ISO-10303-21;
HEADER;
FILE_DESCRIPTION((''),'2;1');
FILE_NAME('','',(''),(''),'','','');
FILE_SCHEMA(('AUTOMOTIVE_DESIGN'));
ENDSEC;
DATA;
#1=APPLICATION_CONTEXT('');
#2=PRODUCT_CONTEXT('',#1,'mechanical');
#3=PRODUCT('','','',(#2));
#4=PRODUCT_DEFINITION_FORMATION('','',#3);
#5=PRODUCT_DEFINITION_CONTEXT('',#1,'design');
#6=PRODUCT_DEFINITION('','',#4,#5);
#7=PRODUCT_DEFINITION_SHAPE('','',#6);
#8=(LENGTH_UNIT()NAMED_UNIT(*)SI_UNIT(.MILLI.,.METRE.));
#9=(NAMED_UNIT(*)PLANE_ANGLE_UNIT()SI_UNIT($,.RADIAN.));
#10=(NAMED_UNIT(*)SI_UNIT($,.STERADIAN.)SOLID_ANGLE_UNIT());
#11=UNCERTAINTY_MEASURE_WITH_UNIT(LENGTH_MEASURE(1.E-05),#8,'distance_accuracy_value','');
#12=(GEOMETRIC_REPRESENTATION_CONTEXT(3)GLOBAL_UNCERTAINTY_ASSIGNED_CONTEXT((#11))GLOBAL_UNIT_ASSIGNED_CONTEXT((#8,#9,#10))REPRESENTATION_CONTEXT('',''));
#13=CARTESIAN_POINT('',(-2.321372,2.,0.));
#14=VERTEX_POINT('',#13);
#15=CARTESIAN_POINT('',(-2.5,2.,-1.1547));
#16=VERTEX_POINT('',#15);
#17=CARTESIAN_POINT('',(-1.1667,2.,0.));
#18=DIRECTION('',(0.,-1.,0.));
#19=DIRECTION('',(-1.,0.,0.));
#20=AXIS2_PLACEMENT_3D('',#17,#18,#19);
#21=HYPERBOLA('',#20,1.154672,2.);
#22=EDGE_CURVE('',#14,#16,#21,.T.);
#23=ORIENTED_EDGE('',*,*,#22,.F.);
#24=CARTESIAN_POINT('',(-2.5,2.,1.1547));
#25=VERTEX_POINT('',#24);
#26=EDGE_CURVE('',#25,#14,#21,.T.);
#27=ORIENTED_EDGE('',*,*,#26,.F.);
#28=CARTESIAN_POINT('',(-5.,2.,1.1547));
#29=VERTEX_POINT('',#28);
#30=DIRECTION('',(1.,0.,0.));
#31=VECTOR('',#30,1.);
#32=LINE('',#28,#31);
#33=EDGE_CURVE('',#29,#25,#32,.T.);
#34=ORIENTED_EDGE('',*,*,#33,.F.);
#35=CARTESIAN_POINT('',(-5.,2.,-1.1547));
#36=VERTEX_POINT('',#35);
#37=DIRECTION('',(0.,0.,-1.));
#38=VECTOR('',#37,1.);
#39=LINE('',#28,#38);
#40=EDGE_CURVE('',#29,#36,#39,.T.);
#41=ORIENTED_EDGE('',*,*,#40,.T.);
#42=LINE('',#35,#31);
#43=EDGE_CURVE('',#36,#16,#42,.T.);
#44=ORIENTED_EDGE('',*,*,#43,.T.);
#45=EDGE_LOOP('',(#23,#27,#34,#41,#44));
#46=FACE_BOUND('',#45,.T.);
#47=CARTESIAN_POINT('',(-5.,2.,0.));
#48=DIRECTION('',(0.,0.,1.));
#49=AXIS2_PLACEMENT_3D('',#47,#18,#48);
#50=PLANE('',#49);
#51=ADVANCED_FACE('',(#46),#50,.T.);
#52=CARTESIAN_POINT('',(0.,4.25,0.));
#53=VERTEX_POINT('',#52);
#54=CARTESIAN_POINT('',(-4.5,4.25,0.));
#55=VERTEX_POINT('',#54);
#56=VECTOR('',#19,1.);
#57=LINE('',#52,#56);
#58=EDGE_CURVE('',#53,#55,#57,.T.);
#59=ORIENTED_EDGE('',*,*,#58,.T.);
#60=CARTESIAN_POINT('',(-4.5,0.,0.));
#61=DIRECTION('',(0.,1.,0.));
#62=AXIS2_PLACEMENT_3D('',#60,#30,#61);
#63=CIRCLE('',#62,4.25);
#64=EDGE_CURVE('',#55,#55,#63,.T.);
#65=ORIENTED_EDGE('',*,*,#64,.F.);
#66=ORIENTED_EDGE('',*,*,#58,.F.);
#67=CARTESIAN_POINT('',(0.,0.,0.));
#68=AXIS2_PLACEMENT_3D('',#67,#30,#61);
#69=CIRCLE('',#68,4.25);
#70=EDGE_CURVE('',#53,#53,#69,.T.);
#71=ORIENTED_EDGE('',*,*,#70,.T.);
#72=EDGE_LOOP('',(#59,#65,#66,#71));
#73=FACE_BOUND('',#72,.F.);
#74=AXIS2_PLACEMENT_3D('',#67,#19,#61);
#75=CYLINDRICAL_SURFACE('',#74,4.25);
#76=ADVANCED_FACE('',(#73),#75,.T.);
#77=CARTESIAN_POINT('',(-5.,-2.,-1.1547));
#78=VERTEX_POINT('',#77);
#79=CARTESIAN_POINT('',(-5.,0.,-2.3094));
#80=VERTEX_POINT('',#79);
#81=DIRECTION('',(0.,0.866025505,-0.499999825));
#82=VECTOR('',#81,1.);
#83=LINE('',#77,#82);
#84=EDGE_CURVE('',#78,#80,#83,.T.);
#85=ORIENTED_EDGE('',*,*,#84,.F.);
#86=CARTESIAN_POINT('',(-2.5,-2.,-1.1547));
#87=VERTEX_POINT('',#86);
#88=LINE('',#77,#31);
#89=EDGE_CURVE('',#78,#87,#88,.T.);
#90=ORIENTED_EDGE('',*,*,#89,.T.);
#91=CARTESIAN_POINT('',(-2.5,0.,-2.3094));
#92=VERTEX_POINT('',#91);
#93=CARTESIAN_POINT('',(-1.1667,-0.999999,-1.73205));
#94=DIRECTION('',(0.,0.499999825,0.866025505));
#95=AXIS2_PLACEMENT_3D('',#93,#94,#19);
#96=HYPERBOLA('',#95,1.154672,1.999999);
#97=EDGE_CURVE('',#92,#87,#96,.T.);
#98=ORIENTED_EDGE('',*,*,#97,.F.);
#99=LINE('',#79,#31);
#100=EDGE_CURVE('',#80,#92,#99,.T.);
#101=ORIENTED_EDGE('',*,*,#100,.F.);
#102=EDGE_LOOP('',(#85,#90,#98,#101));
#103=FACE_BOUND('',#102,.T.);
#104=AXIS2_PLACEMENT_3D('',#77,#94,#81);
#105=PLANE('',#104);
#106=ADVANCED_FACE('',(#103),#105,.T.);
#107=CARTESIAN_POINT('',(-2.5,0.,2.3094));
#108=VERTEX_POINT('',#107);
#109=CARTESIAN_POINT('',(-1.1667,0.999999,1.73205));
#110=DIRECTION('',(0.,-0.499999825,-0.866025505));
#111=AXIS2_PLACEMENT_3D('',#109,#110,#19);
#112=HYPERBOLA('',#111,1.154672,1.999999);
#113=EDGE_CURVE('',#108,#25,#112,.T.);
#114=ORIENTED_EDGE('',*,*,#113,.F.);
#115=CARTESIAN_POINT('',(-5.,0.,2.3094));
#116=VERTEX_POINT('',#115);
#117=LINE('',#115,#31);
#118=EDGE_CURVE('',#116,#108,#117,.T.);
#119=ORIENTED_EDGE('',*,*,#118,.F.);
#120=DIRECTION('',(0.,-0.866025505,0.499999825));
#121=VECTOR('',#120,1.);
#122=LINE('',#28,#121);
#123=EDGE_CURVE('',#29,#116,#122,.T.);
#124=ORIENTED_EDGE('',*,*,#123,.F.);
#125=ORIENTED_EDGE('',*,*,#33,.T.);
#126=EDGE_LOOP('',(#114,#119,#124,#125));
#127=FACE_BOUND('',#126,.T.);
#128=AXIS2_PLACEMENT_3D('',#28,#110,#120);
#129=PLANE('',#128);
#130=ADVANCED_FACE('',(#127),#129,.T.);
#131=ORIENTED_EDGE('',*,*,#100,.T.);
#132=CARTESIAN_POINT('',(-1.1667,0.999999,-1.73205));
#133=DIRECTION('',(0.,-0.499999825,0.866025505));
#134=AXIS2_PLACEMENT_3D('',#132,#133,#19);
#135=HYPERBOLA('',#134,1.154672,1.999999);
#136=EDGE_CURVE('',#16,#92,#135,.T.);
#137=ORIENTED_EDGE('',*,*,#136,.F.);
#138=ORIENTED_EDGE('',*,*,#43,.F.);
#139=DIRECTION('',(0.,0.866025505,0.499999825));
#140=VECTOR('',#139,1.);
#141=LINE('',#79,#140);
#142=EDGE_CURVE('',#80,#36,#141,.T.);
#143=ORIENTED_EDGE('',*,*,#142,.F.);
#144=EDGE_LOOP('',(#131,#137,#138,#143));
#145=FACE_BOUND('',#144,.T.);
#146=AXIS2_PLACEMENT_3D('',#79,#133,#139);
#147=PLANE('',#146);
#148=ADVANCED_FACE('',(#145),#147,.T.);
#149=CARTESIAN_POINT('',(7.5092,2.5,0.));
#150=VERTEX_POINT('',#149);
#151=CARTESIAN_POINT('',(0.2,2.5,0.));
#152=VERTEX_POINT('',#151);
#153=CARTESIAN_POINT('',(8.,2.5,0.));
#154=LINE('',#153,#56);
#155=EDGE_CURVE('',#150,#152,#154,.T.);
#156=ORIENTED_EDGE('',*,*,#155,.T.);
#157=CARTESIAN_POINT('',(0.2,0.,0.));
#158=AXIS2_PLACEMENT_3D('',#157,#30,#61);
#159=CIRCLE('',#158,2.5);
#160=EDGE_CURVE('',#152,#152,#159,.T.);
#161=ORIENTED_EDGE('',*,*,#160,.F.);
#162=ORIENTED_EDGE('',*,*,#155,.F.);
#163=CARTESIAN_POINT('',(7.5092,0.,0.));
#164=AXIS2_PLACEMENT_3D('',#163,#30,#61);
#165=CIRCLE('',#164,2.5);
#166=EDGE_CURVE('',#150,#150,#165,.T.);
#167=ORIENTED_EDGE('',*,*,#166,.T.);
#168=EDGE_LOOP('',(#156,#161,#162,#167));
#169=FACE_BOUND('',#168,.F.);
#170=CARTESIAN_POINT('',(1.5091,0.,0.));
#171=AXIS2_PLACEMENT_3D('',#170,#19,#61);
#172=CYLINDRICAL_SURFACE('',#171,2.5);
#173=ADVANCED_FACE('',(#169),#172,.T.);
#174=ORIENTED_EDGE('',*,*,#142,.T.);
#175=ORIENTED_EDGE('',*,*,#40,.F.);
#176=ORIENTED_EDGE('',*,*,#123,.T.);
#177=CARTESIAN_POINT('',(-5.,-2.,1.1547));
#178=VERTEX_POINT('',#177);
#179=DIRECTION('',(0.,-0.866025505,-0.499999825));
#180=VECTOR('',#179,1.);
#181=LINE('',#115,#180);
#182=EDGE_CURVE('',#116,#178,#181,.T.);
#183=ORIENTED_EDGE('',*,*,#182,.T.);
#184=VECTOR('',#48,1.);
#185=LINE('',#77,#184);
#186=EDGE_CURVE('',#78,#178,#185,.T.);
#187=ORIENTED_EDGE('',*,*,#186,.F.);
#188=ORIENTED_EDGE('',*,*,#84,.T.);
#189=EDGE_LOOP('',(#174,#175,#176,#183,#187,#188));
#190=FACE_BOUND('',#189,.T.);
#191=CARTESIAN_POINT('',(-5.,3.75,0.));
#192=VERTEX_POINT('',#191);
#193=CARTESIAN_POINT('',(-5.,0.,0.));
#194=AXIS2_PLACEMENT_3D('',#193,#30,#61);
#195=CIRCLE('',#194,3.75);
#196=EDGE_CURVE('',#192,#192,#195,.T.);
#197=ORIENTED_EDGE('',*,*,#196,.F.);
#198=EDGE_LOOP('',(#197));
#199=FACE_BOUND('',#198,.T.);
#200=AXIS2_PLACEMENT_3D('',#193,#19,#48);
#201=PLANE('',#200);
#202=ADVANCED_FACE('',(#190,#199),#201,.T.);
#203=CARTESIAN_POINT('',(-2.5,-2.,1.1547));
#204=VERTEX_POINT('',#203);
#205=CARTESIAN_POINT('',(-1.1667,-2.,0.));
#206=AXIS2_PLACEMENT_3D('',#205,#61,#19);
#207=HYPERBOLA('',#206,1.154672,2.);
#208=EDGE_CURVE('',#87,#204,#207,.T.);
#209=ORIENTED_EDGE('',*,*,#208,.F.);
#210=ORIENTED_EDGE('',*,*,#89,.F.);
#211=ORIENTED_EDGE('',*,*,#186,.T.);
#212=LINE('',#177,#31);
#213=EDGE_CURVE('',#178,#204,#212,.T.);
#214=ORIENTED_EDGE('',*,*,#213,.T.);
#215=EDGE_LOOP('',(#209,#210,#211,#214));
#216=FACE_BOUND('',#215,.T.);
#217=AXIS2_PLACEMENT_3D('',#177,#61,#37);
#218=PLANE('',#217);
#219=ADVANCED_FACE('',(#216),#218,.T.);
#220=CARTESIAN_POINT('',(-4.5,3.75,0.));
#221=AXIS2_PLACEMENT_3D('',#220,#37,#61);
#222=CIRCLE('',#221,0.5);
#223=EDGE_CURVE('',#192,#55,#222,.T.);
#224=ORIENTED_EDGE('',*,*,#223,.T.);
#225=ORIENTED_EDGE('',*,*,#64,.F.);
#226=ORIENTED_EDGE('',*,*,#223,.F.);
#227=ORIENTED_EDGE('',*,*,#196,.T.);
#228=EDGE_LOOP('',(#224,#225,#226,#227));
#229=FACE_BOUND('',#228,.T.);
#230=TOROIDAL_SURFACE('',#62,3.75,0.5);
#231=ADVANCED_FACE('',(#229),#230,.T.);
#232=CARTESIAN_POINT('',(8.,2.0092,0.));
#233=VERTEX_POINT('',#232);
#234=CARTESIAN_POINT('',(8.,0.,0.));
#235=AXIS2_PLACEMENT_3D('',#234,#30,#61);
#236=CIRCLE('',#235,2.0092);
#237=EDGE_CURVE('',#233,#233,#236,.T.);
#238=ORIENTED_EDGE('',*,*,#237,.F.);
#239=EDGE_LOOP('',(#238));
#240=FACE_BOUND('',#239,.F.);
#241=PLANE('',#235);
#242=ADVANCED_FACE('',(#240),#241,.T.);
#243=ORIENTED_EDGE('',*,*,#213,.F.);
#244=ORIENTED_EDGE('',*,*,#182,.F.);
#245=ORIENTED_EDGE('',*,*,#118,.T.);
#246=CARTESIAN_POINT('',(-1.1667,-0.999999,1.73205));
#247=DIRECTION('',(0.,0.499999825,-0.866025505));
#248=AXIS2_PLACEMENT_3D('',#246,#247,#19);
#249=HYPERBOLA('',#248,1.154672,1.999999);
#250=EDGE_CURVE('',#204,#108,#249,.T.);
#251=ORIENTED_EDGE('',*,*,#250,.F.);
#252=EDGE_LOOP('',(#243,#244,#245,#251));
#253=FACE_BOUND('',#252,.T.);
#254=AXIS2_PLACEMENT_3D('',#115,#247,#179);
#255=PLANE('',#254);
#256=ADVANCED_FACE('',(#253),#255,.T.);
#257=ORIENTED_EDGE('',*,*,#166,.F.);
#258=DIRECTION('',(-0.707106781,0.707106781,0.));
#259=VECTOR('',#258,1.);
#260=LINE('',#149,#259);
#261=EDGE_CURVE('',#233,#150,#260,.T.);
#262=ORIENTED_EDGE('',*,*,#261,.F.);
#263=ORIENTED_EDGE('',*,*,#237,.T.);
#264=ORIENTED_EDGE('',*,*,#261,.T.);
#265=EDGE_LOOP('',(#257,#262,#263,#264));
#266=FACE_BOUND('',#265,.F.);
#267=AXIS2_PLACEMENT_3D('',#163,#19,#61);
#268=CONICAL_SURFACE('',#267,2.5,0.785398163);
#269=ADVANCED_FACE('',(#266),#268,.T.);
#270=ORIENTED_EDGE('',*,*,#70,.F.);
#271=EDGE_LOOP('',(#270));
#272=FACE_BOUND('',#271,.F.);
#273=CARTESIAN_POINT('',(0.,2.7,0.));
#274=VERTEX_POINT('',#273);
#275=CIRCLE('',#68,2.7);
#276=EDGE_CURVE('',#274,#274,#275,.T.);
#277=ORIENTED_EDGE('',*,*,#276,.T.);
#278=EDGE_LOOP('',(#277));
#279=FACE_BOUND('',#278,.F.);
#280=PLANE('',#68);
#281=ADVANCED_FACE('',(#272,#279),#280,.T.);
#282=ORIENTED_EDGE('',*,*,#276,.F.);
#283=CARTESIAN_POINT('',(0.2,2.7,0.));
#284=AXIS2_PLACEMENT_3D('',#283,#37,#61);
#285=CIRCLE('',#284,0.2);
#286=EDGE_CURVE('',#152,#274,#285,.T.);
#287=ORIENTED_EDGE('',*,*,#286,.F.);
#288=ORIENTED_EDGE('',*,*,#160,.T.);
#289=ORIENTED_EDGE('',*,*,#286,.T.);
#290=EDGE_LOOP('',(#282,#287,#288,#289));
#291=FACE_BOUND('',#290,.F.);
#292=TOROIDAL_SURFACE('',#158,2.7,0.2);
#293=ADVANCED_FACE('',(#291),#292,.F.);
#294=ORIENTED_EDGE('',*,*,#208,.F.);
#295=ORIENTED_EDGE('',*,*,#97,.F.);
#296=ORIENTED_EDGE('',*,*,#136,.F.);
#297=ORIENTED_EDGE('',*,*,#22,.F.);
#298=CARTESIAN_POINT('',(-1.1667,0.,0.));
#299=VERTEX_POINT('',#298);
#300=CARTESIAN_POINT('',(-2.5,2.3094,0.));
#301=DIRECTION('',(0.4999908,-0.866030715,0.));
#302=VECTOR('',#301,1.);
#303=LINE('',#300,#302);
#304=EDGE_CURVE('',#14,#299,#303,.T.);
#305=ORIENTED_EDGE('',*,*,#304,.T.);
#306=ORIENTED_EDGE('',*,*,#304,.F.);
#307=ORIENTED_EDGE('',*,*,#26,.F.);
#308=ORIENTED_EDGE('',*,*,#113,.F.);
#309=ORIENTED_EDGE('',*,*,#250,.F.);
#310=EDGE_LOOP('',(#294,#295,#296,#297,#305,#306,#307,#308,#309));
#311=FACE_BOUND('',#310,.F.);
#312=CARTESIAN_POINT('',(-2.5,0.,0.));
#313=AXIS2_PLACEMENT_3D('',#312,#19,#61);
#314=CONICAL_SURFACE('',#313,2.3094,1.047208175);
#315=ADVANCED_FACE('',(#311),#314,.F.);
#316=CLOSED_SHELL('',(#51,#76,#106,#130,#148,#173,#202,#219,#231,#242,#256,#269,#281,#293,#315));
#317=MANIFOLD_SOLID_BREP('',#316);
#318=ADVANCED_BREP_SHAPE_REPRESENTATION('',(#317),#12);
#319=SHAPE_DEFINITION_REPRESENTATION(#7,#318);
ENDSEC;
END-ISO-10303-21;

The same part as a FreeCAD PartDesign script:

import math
import FreeCAD as App
import Part
import Sketcher

V = App.Vector
Q = App.Units.Quantity


def edges_at(feature, points):
    """Names of the edges that pass closest to the given points."""
    edges = feature.Shape.Edges
    near = lambda p: min(range(len(edges)), key=lambda i: edges[i].distToShape(Part.Vertex(*p))[0])
    return sorted({f"Edge{near(p) + 1}" for p in points})


def add_polygon(sketch, points):
    """Adds a closed chain of lines whose ends are joined by coincident constraints."""
    first, n = sketch.GeometryCount, len(points)
    for a, b in zip(points, points[1:] + points[:1]):
        sketch.addGeometry(Part.LineSegment(App.Vector(*a, 0), App.Vector(*b, 0)), False)
    for i in range(n):
        sketch.addConstraint(Sketcher.Constraint("Coincident", first + i, 2, first + (i + 1) % n, 1))

doc = App.newDocument("Part")
params = doc.addObject("Spreadsheet::Sheet", "Params")
for row, (alias, value) in enumerate([
    ("sketch1_width", "8 mm"),
    ("sketch1_width2", "5 mm"),
    ("sketch1_width3", "2.5 mm"),
    ("sketch1_height", "1.75 mm"),
    ("revolution_angle", "360 deg"),
    ("pad1_length", "2.6786 mm"),
    ("fillet_radius", "0.5 mm"),
    ("chamfer_size", "0.4908 mm"),
    ("chamfer_size2", "0.4908 mm"),
    ("fillet2_radius", "0.2 mm"),
], start=1):
    params.set(f"A{row}", alias)
    params.set(f"B{row}", "=" + value)
    params.setAlias(f"B{row}", alias)

body = doc.addObject("PartDesign::Body", "Body")

# Sketch on XY plane
sketch1 = body.newObject("Sketcher::SketchObject", "Sketch")
sketch1.AttachmentSupport = (doc.getObject("XY_Plane"), [""])
sketch1.MapMode = "FlatFace"
add_polygon(sketch1, [(-2.5, 2.3094), (-1.1667, 0), (8, 0), (8, 2.5), (0, 2.5), (0, 4.25), (-5, 4.25), (-5, 2.3094)])  # lines 0-7
sketch1.addConstraint([
    Sketcher.Constraint("Horizontal", 1),
    Sketcher.Constraint("Vertical", 2),
    Sketcher.Constraint("Horizontal", 3),
    Sketcher.Constraint("Vertical", 4),
    Sketcher.Constraint("Horizontal", 5),
    Sketcher.Constraint("Vertical", 6),
    Sketcher.Constraint("Horizontal", 7),
    Sketcher.Constraint("PointOnObject", 0, 2, -1),
    Sketcher.Constraint("PointOnObject", 3, 2, -2),
    Sketcher.Constraint("Equal", 7, 2),
    Sketcher.Constraint("DistanceX", 3, 2, 3, 1, 8.0),
    Sketcher.Constraint("DistanceX", 5, 2, 5, 1, 5.0),
    Sketcher.Constraint("DistanceX", 7, 1, 7, 2, 2.5),
    Sketcher.Constraint("Angle", 0, Q("-60.0006 deg")),
    Sketcher.Constraint("DistanceY", 4, 1, 4, 2, 1.75),
    Sketcher.Constraint("DistanceX", 1, 1, 1, 2, 9.1667),
])
sketch1.setExpression("Constraints[18]", "Params.sketch1_width")
sketch1.setExpression("Constraints[19]", "Params.sketch1_width2")
sketch1.setExpression("Constraints[20]", "Params.sketch1_width3")
sketch1.setExpression("Constraints[22]", "Params.sketch1_height")
revolution = body.newObject("PartDesign::Revolution", "Revolution")
revolution.Profile = sketch1
revolution.ReferenceAxis = (sketch1, ["H_Axis"])
revolution.setExpression("Angle", "Params.revolution_angle")

# Sketch on YZ plane
sketch2 = body.newObject("Sketcher::SketchObject", "Sketch001")
sketch2.AttachmentSupport = (doc.getObject("YZ_Plane"), [""])
sketch2.MapMode = "FlatFace"
sketch2.AttachmentOffset = App.Placement(V(0, 0, -5), App.Rotation())
sketch2.addGeometry([
    Part.LineSegment(V(2, 1.1547, 0), V(0, 2.3094, 0)),  # 0
    Part.ArcOfCircle(Part.Circle(V(0, 0, 0), V(0, 0, 1), 2.3094), math.radians(29.999988), math.radians(90)),  # 1
    Part.ArcOfCircle(Part.Circle(V(0, 0, 0), V(0, 0, 1), 2.3094), math.radians(90), math.radians(150.000012)),  # 2
    Part.LineSegment(V(0, 2.3094, 0), V(-2, 1.1547, 0)),  # 3
    Part.ArcOfCircle(Part.Circle(V(0, 0, 0), V(0, 0, 1), 2.3094), math.radians(-29.999988), math.radians(29.999988)),  # 4
    Part.LineSegment(V(2, -1.1547, 0), V(2, 1.1547, 0)),  # 5
    Part.LineSegment(V(-2, 1.1547, 0), V(-2, -1.1547, 0)),  # 6
    Part.ArcOfCircle(Part.Circle(V(0, 0, 0), V(0, 0, 1), 2.3094), math.radians(150.000012), math.radians(209.999988)),  # 7
    Part.LineSegment(V(-2, -1.1547, 0), V(0, -2.3094, 0)),  # 8
    Part.ArcOfCircle(Part.Circle(V(0, 0, 0), V(0, 0, 1), 2.3094), math.radians(-150.000012), math.radians(-90)),  # 9
    Part.ArcOfCircle(Part.Circle(V(0, 0, 0), V(0, 0, 1), 2.3094), math.radians(-90), math.radians(-29.999988)),  # 10
    Part.LineSegment(V(0, -2.3094, 0), V(2, -1.1547, 0)),  # 11
], False)
sketch2.addConstraint([
    Sketcher.Constraint("Coincident", 0, 1, 1, 1),
    Sketcher.Constraint("Coincident", 1, 2, 0, 2),
    Sketcher.Constraint("Coincident", 2, 1, 3, 1),
    Sketcher.Constraint("Coincident", 3, 2, 2, 2),
    Sketcher.Constraint("Coincident", 4, 1, 5, 1),
    Sketcher.Constraint("Coincident", 5, 2, 4, 2),
    Sketcher.Constraint("Coincident", 6, 1, 7, 1),
    Sketcher.Constraint("Coincident", 7, 2, 6, 2),
    Sketcher.Constraint("Coincident", 8, 1, 9, 1),
    Sketcher.Constraint("Coincident", 9, 2, 8, 2),
    Sketcher.Constraint("Coincident", 10, 1, 11, 1),
    Sketcher.Constraint("Coincident", 11, 2, 10, 2),
    Sketcher.Constraint("Vertical", 5),
    Sketcher.Constraint("Vertical", 6),
    Sketcher.Constraint("Coincident", 1, 3, -1, 1),
    Sketcher.Constraint("Coincident", 2, 3, -1, 1),
    Sketcher.Constraint("Coincident", 4, 3, -1, 1),
    Sketcher.Constraint("Coincident", 7, 3, -1, 1),
    Sketcher.Constraint("Coincident", 9, 3, -1, 1),
    Sketcher.Constraint("Coincident", 10, 3, -1, 1),
    Sketcher.Constraint("Coincident", 2, 1, 1, 2),
    Sketcher.Constraint("Coincident", 5, 2, 0, 1),
    Sketcher.Constraint("Coincident", 6, 1, 3, 2),
    Sketcher.Constraint("Coincident", 8, 1, 7, 2),
    Sketcher.Constraint("Coincident", 10, 1, 9, 2),
    Sketcher.Constraint("PointOnObject", 1, 2, -2),
    Sketcher.Constraint("PointOnObject", 9, 2, -2),
    Sketcher.Constraint("Parallel", 0, 8),
    Sketcher.Constraint("Parallel", 3, 11),
    Sketcher.Constraint("Angle", 0, Q("150 deg")),
    Sketcher.Constraint("DistanceX", -1, 1, 0, 1, 2.0),
])
pad1 = body.newObject("PartDesign::Pad", "Pad")
pad1.Profile = sketch2
pad1.setExpression("Length", "Params.pad1_length")
doc.recompute()

fillet = body.newObject("PartDesign::Fillet", "Fillet")
fillet.Base = (pad1, edges_at(pad1, [(-5, -4.25, 0)]))
fillet.setExpression("Radius", "Params.fillet_radius")
doc.recompute()

chamfer = body.newObject("PartDesign::Chamfer", "Chamfer")
chamfer.Base = (fillet, edges_at(fillet, [(8, -2.5, 0)]))
chamfer.ChamferType = "Two distances"
chamfer.setExpression("Size", "Params.chamfer_size")
chamfer.setExpression("Size2", "Params.chamfer_size2")
doc.recompute()

fillet2 = body.newObject("PartDesign::Fillet", "Fillet001")
fillet2.Base = (chamfer, edges_at(chamfer, [(0, -2.5, 0)]))
fillet2.setExpression("Radius", "Params.fillet2_radius")

doc.recompute()
